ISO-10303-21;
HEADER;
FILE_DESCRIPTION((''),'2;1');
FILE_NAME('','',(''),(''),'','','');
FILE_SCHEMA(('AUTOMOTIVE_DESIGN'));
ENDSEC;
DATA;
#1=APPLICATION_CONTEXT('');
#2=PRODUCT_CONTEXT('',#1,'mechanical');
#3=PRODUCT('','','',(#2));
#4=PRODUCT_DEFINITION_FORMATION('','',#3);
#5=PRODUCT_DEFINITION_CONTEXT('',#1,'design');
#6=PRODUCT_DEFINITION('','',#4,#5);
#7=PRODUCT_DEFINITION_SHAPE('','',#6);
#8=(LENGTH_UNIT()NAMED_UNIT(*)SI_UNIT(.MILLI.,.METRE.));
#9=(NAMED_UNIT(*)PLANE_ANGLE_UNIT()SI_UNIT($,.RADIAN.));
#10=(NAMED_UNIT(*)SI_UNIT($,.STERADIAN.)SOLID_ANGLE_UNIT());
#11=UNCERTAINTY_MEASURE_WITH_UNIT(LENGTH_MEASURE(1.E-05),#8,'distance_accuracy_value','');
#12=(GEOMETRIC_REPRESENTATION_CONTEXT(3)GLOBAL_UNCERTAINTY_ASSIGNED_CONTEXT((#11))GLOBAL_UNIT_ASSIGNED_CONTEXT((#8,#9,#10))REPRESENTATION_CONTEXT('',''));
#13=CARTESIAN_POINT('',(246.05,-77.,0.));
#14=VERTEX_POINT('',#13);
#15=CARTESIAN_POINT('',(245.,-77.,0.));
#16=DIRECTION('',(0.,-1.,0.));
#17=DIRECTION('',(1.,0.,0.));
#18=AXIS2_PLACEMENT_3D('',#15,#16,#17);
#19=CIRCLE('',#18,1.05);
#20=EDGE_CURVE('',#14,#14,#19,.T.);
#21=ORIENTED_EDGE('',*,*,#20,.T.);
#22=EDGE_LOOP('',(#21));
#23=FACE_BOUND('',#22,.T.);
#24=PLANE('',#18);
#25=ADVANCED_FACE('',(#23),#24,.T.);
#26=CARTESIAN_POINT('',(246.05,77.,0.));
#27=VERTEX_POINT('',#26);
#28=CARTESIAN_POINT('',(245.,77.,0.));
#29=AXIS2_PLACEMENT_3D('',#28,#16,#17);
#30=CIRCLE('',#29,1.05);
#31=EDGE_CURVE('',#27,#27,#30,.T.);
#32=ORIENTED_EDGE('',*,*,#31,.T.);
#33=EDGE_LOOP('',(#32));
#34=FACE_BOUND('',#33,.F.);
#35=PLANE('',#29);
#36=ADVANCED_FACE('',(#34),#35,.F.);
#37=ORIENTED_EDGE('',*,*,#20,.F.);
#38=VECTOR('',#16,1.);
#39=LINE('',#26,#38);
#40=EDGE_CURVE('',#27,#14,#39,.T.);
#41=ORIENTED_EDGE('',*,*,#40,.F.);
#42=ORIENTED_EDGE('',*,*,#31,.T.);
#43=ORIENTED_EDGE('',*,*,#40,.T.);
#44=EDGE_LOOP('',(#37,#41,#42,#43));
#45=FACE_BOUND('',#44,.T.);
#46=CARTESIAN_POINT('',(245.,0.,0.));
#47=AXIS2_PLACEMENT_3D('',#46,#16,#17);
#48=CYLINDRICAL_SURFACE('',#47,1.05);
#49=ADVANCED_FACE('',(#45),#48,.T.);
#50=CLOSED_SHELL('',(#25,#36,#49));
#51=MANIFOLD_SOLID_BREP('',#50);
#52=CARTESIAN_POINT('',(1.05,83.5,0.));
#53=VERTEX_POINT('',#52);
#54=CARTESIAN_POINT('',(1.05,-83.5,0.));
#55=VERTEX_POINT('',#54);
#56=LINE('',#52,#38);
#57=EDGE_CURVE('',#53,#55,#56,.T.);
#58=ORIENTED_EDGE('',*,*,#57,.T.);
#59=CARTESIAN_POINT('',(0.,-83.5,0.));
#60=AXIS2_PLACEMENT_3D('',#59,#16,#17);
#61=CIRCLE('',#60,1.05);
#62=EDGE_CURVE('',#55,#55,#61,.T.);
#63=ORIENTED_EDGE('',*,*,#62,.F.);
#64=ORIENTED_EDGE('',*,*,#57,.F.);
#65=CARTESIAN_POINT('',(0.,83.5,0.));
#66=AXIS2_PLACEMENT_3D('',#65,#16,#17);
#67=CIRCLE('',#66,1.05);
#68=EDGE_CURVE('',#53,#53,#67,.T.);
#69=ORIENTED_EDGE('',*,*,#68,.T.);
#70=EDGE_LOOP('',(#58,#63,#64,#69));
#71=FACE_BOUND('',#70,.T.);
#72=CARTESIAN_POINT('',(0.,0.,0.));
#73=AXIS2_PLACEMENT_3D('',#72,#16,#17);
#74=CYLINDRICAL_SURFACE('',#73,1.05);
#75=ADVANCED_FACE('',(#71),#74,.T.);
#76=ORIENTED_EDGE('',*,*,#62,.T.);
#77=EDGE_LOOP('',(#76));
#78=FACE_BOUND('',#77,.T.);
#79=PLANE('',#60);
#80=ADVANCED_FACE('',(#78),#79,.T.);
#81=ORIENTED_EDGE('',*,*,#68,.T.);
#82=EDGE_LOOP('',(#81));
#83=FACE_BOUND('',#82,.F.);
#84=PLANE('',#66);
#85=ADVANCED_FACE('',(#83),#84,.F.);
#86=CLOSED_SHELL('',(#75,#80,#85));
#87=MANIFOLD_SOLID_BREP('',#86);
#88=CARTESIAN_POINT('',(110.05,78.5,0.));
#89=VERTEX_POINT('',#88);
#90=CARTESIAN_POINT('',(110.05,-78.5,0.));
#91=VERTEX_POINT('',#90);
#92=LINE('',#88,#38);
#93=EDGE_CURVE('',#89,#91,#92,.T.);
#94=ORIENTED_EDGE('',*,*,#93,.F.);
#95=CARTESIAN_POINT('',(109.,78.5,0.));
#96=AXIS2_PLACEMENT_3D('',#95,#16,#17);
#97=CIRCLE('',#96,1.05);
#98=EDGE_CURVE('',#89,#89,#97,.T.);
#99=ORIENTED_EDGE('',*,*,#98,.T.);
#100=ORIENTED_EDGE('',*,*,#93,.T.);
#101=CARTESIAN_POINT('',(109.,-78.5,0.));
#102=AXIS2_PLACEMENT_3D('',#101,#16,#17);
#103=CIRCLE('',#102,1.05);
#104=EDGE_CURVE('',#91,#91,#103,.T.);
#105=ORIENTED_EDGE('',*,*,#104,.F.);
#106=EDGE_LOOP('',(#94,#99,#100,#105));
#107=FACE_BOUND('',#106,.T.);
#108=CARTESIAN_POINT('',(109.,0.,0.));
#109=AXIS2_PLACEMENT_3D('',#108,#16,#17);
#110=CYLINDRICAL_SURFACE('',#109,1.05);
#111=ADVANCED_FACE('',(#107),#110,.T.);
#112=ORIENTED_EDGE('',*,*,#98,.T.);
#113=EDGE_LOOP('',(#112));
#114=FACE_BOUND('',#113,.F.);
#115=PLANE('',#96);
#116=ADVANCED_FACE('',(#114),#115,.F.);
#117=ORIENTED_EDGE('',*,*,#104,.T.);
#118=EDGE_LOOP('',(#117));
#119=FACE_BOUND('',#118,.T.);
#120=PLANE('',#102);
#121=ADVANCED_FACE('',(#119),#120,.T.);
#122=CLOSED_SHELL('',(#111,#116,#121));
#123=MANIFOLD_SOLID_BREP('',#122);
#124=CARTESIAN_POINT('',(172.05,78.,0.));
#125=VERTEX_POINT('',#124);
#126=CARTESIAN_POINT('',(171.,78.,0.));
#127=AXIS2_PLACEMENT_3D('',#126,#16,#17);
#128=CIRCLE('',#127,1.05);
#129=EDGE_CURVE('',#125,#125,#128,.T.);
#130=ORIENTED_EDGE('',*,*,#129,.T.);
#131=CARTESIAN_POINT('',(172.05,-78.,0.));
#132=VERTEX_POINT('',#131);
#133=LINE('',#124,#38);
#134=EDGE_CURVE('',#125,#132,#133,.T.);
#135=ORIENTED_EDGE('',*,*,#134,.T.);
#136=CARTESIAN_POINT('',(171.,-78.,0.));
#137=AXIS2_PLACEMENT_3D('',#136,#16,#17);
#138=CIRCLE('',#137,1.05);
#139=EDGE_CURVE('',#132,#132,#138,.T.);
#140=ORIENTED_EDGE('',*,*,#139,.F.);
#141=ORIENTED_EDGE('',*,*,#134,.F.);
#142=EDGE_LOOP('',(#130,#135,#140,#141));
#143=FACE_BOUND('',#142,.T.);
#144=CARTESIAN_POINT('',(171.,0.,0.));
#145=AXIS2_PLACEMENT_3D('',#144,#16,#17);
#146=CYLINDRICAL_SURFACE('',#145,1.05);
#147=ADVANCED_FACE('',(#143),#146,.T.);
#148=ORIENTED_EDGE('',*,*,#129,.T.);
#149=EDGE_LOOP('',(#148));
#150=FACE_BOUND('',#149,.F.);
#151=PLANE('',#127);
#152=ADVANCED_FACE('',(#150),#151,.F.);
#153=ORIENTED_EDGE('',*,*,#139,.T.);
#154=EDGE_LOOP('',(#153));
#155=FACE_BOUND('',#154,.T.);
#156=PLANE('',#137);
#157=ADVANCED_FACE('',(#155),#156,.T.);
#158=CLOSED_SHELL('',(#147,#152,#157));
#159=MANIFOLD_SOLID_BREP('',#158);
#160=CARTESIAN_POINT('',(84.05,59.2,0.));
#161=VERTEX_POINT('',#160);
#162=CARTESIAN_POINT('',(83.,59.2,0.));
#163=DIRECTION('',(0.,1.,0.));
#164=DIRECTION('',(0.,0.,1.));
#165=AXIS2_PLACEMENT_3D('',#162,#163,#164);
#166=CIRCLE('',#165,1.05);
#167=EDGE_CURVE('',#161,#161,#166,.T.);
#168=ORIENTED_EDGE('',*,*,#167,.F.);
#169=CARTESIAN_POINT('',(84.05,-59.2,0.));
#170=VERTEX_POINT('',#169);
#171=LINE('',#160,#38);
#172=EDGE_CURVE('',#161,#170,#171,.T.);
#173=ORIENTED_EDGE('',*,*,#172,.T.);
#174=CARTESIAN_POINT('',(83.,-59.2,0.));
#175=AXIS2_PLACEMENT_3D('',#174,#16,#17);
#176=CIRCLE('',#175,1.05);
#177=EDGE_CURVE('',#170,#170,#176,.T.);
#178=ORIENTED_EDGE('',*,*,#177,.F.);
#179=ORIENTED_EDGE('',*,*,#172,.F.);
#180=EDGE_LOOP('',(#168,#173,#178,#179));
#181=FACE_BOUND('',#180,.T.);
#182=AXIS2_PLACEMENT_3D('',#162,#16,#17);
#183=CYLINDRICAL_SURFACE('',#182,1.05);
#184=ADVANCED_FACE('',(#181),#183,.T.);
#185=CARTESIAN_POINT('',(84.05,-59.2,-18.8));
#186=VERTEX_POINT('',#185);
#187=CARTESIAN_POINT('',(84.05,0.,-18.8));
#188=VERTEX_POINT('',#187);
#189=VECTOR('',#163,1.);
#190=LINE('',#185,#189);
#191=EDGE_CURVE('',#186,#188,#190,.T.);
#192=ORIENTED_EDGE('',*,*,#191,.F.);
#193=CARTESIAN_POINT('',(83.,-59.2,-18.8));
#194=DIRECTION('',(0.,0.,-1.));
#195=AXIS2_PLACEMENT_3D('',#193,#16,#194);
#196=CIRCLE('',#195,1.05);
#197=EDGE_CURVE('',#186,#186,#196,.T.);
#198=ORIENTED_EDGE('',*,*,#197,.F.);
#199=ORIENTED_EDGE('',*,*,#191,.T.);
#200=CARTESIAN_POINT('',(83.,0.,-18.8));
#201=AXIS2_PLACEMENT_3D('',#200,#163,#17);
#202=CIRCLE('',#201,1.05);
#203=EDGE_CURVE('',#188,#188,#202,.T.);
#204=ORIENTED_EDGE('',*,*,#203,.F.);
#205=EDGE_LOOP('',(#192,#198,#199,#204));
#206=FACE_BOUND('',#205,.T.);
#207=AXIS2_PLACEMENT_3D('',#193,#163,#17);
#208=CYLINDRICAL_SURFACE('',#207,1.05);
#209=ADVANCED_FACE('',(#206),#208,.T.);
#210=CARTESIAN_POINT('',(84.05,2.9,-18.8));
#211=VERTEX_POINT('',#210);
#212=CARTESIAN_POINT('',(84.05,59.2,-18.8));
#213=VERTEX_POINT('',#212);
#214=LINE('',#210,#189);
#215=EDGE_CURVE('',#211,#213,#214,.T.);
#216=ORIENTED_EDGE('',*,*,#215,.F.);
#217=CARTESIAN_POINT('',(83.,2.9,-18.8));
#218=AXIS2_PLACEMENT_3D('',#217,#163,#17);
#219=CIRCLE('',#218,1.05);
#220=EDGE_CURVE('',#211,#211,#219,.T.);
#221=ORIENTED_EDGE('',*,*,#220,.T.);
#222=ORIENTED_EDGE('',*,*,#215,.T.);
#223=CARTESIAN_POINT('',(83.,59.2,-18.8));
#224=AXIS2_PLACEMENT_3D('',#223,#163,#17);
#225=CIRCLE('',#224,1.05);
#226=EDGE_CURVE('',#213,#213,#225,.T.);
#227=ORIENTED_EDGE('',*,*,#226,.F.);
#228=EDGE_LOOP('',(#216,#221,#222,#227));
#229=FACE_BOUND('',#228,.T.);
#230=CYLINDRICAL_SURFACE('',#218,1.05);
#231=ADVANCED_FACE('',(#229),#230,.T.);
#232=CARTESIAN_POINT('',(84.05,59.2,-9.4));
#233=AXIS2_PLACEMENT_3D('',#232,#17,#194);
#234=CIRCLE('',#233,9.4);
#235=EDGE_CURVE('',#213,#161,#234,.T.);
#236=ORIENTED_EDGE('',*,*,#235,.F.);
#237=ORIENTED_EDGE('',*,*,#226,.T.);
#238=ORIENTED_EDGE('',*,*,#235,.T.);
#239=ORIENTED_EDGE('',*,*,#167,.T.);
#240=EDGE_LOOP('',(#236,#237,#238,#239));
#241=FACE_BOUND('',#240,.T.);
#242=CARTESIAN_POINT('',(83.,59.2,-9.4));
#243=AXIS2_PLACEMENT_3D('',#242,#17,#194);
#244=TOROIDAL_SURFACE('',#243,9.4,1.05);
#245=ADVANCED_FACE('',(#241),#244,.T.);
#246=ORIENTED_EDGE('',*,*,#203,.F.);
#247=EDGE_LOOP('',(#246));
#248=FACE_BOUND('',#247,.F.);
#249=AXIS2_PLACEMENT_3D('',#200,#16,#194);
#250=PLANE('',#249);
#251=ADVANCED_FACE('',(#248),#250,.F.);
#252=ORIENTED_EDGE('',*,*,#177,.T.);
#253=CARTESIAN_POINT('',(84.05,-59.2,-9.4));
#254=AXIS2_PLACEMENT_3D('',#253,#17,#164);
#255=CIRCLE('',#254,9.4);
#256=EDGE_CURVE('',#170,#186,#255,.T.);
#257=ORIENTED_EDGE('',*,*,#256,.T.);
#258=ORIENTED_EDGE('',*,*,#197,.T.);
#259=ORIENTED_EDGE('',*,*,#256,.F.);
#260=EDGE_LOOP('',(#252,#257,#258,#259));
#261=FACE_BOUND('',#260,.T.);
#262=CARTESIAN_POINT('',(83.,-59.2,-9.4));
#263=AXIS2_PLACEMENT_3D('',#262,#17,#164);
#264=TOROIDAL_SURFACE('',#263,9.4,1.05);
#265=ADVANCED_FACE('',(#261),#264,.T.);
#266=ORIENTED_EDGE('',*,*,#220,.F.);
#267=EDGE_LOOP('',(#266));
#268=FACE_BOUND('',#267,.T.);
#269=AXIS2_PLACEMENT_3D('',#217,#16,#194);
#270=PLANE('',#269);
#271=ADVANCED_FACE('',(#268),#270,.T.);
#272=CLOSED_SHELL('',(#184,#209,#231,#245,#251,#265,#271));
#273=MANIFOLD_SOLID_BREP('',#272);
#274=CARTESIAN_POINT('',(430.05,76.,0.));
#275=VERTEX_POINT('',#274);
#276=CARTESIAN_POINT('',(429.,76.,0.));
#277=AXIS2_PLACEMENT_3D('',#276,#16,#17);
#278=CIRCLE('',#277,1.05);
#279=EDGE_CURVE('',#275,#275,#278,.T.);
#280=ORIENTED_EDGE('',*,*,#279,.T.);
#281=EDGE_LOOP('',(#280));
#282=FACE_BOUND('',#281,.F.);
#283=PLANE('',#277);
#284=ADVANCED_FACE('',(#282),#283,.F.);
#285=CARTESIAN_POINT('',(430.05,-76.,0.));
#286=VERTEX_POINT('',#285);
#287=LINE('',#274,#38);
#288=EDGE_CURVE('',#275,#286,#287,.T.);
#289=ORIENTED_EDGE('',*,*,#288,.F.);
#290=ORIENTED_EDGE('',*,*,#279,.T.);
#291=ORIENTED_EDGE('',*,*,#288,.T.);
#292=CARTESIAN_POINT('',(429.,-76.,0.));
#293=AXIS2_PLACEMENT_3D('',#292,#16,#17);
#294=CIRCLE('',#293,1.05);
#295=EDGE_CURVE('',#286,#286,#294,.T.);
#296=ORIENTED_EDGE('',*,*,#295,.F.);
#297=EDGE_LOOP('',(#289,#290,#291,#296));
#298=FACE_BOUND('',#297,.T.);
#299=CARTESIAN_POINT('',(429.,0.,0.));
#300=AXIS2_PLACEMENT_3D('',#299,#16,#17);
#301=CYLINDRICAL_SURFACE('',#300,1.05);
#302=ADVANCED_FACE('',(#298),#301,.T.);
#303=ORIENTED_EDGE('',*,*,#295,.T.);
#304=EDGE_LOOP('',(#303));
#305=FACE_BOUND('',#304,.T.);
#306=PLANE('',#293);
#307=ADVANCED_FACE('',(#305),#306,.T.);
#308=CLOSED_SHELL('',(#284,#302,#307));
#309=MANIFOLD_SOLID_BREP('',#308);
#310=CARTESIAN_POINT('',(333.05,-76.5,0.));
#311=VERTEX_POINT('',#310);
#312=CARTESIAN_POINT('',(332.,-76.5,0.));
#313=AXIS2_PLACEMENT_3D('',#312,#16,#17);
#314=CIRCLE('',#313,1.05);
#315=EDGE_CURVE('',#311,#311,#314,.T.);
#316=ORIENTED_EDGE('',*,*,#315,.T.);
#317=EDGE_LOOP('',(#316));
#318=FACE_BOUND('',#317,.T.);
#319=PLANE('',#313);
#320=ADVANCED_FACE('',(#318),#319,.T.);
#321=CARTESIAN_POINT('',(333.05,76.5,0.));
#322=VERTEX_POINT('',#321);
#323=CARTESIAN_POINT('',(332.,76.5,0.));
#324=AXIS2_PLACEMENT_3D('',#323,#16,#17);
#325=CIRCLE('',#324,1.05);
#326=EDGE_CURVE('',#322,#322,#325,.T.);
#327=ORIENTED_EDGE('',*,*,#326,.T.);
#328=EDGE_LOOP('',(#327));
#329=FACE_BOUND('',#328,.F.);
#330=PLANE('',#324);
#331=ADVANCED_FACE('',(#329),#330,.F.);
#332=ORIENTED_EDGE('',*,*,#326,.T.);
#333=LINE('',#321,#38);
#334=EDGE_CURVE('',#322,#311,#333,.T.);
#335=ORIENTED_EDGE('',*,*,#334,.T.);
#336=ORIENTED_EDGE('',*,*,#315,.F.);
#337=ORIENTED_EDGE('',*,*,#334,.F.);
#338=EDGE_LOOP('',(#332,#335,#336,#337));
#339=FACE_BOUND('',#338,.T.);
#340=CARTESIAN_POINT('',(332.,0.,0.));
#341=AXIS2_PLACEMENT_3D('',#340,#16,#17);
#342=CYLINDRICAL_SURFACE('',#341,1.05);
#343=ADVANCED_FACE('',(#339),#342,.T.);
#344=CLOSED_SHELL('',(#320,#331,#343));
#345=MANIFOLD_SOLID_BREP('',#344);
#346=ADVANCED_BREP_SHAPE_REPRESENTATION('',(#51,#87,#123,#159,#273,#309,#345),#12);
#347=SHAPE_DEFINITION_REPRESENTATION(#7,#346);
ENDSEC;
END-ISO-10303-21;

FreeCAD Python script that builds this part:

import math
import FreeCAD as App
import Part
import Sketcher

doc = App.newDocument("Part")
body = doc.addObject("PartDesign::Body", "Body")

# Sketch on XZ plane
sketch1 = body.newObject("Sketcher::SketchObject", "Sketch")
sketch1.AttachmentSupport = (doc.getObject("XZ_Plane"), [""])
sketch1.MapMode = "FlatFace"
sketch1.addGeometry(Part.Circle(App.Vector(0, 0, 0), App.Vector(0, 0, 1), 1.1), False)
sketch1.addConstraint([
    Sketcher.Constraint("Coincident", 0, 3, -1, 1),
    Sketcher.Constraint("Diameter", 0, 2.1),
])
pad1 = body.newObject("PartDesign::Pad", "Pad")
pad1.Profile = sketch1
pad1.Length = 167
pad1.Midplane = True
body2 = doc.addObject("PartDesign::Body", "Body001")

# Sketch on XZ plane
sketch2 = body2.newObject("Sketcher::SketchObject", "Sketch001")
sketch2.AttachmentSupport = (doc.getObject("XZ_Plane001"), [""])
sketch2.MapMode = "FlatFace"
sketch2.addGeometry(Part.Circle(App.Vector(109, 0, 0), App.Vector(0, 0, 1), 1.1), False)
sketch2.addConstraint([
    Sketcher.Constraint("PointOnObject", 0, 3, -1),
    Sketcher.Constraint("Diameter", 0, 2.1),
    Sketcher.Constraint("DistanceX", -1, 1, 0, 3, 109.0),
])
pad2 = body2.newObject("PartDesign::Pad", "Pad001")
pad2.Profile = sketch2
pad2.Length = 157
pad2.Midplane = True
body3 = doc.addObject("PartDesign::Body", "Body002")

# Sketch on XZ plane
sketch3 = body3.newObject("Sketcher::SketchObject", "Sketch002")
sketch3.AttachmentSupport = (doc.getObject("XZ_Plane002"), [""])
sketch3.MapMode = "FlatFace"
sketch3.addGeometry(Part.Circle(App.Vector(171, 0, 0), App.Vector(0, 0, 1), 1.1), False)
sketch3.addConstraint([
    Sketcher.Constraint("PointOnObject", 0, 3, -1),
    Sketcher.Constraint("Diameter", 0, 2.1),
    Sketcher.Constraint("DistanceX", -1, 1, 0, 3, 171.0),
])
pad3 = body3.newObject("PartDesign::Pad", "Pad002")
pad3.Profile = sketch3
pad3.Length = 156
pad3.Midplane = True
body4 = doc.addObject("PartDesign::Body", "Body003")

# Sketch on XZ plane
sketch4 = body4.newObject("Sketcher::SketchObject", "Sketch003")
sketch4.AttachmentSupport = (doc.getObject("XZ_Plane003"), [""])
sketch4.MapMode = "FlatFace"
sketch4.addGeometry(Part.Circle(App.Vector(245, 0, 0), App.Vector(0, 0, 1), 1.1), False)
sketch4.addConstraint([
    Sketcher.Constraint("PointOnObject", 0, 3, -1),
    Sketcher.Constraint("Diameter", 0, 2.1),
    Sketcher.Constraint("DistanceX", -1, 1, 0, 3, 245.0),
])
pad4 = body4.newObject("PartDesign::Pad", "Pad003")
pad4.Profile = sketch4
pad4.Length = 154
pad4.Midplane = True
body5 = doc.addObject("PartDesign::Body", "Body004")

# Sketch on XZ plane
sketch5 = body5.newObject("Sketcher::SketchObject", "Sketch004")
sketch5.AttachmentSupport = (doc.getObject("XZ_Plane004"), [""])
sketch5.MapMode = "FlatFace"
sketch5.addGeometry(Part.Circle(App.Vector(332, 0, 0), App.Vector(0, 0, 1), 1.1), False)
sketch5.addConstraint([
    Sketcher.Constraint("PointOnObject", 0, 3, -1),
    Sketcher.Constraint("Diameter", 0, 2.1),
    Sketcher.Constraint("DistanceX", -1, 1, 0, 3, 332.0),
])
pad5 = body5.newObject("PartDesign::Pad", "Pad004")
pad5.Profile = sketch5
pad5.Length = 153
pad5.Midplane = True
body6 = doc.addObject("PartDesign::Body", "Body005")

# Sketch on XZ plane
sketch6 = body6.newObject("Sketcher::SketchObject", "Sketch005")
sketch6.AttachmentSupport = (doc.getObject("XZ_Plane005"), [""])
sketch6.MapMode = "FlatFace"
sketch6.addGeometry(Part.Circle(App.Vector(429, 0, 0), App.Vector(0, 0, 1), 1.1), False)
sketch6.addConstraint([
    Sketcher.Constraint("PointOnObject", 0, 3, -1),
    Sketcher.Constraint("Diameter", 0, 2.1),
    Sketcher.Constraint("DistanceX", -1, 1, 0, 3, 429.0),
])
pad6 = body6.newObject("PartDesign::Pad", "Pad005")
pad6.Profile = sketch6
pad6.Length = 152
pad6.Midplane = True
body7 = doc.addObject("PartDesign::Body", "Body006")

# Sketch on XZ plane
sketch7 = body7.newObject("Sketcher::SketchObject", "Sketch006")
sketch7.AttachmentSupport = (doc.getObject("XZ_Plane006"), [""])
sketch7.MapMode = "FlatFace"
sketch7.AttachmentOffset = App.Placement(App.Vector(0, 0, -2.9), App.Rotation())
sketch7.addGeometry(Part.Circle(App.Vector(83, -18.8, 0), App.Vector(0, 0, 1), 1.1), False)
sketch7.addConstraint([
    Sketcher.Constraint("Diameter", 0, 2.1),
    Sketcher.Constraint("DistanceX", -1, 1, 0, 3, 83.0),
    Sketcher.Constraint("DistanceY", 0, 3, -1, 1, 18.8),
])

# Sketch on YZ plane
sketch8 = body7.newObject("Sketcher::SketchObject", "Sketch007")
sketch8.AttachmentSupport = (doc.getObject("YZ_Plane006"), [""])
sketch8.MapMode = "FlatFace"
sketch8.AttachmentOffset = App.Placement(App.Vector(0, 0, 83), App.Rotation())
sketch8.addGeometry([
    Part.LineSegment(App.Vector(3, -19, 0), App.Vector(59, -19, 0)),  # 0
    Part.ArcOfCircle(Part.Circle(App.Vector(59, -9, 0), App.Vector(0, 0, 1), 9), math.radians(-90), math.radians(90)),  # 1
    Part.LineSegment(App.Vector(59, 0, 0), App.Vector(-59, 0, 0)),  # 2
    Part.ArcOfCircle(Part.Circle(App.Vector(-59, -9, 0), App.Vector(0, 0, 1), 9), math.radians(90), math.radians(270)),  # 3
    Part.LineSegment(App.Vector(-59, -19, 0), App.Vector(0, -19, 0)),  # 4
], False)
sketch8.addConstraint([
    Sketcher.Constraint("Tangent", 0, 2, 1, 1),
    Sketcher.Constraint("Tangent", 1, 2, 2, 1),
    Sketcher.Constraint("Tangent", 2, 2, 3, 1),
    Sketcher.Constraint("Tangent", 3, 2, 4, 1),
    Sketcher.Constraint("Horizontal", 0),
    Sketcher.Constraint("Horizontal", 2),
    Sketcher.Constraint("Horizontal", 4),
    Sketcher.Constraint("Equal", 1, 3),
    Sketcher.Constraint("Symmetric", 1, 2, 2, 2, -1, 1),
    Sketcher.Constraint("PointOnObject", 4, 2, -2),
    Sketcher.Constraint("Radius", 1, 9.4),
    Sketcher.Constraint("DistanceX", 0, 1, 0, 2, 56.3),
    Sketcher.Constraint("DistanceX", 2, 2, 2, 1, 118.4),
])
doc.recompute()

additivepipe = body7.newObject("PartDesign::AdditivePipe", "AdditivePipe")
additivepipe.Profile = sketch7
additivepipe.Spine = (sketch8, ["Edge1", "Edge2", "Edge3", "Edge4", "Edge5"])

doc.recompute()
